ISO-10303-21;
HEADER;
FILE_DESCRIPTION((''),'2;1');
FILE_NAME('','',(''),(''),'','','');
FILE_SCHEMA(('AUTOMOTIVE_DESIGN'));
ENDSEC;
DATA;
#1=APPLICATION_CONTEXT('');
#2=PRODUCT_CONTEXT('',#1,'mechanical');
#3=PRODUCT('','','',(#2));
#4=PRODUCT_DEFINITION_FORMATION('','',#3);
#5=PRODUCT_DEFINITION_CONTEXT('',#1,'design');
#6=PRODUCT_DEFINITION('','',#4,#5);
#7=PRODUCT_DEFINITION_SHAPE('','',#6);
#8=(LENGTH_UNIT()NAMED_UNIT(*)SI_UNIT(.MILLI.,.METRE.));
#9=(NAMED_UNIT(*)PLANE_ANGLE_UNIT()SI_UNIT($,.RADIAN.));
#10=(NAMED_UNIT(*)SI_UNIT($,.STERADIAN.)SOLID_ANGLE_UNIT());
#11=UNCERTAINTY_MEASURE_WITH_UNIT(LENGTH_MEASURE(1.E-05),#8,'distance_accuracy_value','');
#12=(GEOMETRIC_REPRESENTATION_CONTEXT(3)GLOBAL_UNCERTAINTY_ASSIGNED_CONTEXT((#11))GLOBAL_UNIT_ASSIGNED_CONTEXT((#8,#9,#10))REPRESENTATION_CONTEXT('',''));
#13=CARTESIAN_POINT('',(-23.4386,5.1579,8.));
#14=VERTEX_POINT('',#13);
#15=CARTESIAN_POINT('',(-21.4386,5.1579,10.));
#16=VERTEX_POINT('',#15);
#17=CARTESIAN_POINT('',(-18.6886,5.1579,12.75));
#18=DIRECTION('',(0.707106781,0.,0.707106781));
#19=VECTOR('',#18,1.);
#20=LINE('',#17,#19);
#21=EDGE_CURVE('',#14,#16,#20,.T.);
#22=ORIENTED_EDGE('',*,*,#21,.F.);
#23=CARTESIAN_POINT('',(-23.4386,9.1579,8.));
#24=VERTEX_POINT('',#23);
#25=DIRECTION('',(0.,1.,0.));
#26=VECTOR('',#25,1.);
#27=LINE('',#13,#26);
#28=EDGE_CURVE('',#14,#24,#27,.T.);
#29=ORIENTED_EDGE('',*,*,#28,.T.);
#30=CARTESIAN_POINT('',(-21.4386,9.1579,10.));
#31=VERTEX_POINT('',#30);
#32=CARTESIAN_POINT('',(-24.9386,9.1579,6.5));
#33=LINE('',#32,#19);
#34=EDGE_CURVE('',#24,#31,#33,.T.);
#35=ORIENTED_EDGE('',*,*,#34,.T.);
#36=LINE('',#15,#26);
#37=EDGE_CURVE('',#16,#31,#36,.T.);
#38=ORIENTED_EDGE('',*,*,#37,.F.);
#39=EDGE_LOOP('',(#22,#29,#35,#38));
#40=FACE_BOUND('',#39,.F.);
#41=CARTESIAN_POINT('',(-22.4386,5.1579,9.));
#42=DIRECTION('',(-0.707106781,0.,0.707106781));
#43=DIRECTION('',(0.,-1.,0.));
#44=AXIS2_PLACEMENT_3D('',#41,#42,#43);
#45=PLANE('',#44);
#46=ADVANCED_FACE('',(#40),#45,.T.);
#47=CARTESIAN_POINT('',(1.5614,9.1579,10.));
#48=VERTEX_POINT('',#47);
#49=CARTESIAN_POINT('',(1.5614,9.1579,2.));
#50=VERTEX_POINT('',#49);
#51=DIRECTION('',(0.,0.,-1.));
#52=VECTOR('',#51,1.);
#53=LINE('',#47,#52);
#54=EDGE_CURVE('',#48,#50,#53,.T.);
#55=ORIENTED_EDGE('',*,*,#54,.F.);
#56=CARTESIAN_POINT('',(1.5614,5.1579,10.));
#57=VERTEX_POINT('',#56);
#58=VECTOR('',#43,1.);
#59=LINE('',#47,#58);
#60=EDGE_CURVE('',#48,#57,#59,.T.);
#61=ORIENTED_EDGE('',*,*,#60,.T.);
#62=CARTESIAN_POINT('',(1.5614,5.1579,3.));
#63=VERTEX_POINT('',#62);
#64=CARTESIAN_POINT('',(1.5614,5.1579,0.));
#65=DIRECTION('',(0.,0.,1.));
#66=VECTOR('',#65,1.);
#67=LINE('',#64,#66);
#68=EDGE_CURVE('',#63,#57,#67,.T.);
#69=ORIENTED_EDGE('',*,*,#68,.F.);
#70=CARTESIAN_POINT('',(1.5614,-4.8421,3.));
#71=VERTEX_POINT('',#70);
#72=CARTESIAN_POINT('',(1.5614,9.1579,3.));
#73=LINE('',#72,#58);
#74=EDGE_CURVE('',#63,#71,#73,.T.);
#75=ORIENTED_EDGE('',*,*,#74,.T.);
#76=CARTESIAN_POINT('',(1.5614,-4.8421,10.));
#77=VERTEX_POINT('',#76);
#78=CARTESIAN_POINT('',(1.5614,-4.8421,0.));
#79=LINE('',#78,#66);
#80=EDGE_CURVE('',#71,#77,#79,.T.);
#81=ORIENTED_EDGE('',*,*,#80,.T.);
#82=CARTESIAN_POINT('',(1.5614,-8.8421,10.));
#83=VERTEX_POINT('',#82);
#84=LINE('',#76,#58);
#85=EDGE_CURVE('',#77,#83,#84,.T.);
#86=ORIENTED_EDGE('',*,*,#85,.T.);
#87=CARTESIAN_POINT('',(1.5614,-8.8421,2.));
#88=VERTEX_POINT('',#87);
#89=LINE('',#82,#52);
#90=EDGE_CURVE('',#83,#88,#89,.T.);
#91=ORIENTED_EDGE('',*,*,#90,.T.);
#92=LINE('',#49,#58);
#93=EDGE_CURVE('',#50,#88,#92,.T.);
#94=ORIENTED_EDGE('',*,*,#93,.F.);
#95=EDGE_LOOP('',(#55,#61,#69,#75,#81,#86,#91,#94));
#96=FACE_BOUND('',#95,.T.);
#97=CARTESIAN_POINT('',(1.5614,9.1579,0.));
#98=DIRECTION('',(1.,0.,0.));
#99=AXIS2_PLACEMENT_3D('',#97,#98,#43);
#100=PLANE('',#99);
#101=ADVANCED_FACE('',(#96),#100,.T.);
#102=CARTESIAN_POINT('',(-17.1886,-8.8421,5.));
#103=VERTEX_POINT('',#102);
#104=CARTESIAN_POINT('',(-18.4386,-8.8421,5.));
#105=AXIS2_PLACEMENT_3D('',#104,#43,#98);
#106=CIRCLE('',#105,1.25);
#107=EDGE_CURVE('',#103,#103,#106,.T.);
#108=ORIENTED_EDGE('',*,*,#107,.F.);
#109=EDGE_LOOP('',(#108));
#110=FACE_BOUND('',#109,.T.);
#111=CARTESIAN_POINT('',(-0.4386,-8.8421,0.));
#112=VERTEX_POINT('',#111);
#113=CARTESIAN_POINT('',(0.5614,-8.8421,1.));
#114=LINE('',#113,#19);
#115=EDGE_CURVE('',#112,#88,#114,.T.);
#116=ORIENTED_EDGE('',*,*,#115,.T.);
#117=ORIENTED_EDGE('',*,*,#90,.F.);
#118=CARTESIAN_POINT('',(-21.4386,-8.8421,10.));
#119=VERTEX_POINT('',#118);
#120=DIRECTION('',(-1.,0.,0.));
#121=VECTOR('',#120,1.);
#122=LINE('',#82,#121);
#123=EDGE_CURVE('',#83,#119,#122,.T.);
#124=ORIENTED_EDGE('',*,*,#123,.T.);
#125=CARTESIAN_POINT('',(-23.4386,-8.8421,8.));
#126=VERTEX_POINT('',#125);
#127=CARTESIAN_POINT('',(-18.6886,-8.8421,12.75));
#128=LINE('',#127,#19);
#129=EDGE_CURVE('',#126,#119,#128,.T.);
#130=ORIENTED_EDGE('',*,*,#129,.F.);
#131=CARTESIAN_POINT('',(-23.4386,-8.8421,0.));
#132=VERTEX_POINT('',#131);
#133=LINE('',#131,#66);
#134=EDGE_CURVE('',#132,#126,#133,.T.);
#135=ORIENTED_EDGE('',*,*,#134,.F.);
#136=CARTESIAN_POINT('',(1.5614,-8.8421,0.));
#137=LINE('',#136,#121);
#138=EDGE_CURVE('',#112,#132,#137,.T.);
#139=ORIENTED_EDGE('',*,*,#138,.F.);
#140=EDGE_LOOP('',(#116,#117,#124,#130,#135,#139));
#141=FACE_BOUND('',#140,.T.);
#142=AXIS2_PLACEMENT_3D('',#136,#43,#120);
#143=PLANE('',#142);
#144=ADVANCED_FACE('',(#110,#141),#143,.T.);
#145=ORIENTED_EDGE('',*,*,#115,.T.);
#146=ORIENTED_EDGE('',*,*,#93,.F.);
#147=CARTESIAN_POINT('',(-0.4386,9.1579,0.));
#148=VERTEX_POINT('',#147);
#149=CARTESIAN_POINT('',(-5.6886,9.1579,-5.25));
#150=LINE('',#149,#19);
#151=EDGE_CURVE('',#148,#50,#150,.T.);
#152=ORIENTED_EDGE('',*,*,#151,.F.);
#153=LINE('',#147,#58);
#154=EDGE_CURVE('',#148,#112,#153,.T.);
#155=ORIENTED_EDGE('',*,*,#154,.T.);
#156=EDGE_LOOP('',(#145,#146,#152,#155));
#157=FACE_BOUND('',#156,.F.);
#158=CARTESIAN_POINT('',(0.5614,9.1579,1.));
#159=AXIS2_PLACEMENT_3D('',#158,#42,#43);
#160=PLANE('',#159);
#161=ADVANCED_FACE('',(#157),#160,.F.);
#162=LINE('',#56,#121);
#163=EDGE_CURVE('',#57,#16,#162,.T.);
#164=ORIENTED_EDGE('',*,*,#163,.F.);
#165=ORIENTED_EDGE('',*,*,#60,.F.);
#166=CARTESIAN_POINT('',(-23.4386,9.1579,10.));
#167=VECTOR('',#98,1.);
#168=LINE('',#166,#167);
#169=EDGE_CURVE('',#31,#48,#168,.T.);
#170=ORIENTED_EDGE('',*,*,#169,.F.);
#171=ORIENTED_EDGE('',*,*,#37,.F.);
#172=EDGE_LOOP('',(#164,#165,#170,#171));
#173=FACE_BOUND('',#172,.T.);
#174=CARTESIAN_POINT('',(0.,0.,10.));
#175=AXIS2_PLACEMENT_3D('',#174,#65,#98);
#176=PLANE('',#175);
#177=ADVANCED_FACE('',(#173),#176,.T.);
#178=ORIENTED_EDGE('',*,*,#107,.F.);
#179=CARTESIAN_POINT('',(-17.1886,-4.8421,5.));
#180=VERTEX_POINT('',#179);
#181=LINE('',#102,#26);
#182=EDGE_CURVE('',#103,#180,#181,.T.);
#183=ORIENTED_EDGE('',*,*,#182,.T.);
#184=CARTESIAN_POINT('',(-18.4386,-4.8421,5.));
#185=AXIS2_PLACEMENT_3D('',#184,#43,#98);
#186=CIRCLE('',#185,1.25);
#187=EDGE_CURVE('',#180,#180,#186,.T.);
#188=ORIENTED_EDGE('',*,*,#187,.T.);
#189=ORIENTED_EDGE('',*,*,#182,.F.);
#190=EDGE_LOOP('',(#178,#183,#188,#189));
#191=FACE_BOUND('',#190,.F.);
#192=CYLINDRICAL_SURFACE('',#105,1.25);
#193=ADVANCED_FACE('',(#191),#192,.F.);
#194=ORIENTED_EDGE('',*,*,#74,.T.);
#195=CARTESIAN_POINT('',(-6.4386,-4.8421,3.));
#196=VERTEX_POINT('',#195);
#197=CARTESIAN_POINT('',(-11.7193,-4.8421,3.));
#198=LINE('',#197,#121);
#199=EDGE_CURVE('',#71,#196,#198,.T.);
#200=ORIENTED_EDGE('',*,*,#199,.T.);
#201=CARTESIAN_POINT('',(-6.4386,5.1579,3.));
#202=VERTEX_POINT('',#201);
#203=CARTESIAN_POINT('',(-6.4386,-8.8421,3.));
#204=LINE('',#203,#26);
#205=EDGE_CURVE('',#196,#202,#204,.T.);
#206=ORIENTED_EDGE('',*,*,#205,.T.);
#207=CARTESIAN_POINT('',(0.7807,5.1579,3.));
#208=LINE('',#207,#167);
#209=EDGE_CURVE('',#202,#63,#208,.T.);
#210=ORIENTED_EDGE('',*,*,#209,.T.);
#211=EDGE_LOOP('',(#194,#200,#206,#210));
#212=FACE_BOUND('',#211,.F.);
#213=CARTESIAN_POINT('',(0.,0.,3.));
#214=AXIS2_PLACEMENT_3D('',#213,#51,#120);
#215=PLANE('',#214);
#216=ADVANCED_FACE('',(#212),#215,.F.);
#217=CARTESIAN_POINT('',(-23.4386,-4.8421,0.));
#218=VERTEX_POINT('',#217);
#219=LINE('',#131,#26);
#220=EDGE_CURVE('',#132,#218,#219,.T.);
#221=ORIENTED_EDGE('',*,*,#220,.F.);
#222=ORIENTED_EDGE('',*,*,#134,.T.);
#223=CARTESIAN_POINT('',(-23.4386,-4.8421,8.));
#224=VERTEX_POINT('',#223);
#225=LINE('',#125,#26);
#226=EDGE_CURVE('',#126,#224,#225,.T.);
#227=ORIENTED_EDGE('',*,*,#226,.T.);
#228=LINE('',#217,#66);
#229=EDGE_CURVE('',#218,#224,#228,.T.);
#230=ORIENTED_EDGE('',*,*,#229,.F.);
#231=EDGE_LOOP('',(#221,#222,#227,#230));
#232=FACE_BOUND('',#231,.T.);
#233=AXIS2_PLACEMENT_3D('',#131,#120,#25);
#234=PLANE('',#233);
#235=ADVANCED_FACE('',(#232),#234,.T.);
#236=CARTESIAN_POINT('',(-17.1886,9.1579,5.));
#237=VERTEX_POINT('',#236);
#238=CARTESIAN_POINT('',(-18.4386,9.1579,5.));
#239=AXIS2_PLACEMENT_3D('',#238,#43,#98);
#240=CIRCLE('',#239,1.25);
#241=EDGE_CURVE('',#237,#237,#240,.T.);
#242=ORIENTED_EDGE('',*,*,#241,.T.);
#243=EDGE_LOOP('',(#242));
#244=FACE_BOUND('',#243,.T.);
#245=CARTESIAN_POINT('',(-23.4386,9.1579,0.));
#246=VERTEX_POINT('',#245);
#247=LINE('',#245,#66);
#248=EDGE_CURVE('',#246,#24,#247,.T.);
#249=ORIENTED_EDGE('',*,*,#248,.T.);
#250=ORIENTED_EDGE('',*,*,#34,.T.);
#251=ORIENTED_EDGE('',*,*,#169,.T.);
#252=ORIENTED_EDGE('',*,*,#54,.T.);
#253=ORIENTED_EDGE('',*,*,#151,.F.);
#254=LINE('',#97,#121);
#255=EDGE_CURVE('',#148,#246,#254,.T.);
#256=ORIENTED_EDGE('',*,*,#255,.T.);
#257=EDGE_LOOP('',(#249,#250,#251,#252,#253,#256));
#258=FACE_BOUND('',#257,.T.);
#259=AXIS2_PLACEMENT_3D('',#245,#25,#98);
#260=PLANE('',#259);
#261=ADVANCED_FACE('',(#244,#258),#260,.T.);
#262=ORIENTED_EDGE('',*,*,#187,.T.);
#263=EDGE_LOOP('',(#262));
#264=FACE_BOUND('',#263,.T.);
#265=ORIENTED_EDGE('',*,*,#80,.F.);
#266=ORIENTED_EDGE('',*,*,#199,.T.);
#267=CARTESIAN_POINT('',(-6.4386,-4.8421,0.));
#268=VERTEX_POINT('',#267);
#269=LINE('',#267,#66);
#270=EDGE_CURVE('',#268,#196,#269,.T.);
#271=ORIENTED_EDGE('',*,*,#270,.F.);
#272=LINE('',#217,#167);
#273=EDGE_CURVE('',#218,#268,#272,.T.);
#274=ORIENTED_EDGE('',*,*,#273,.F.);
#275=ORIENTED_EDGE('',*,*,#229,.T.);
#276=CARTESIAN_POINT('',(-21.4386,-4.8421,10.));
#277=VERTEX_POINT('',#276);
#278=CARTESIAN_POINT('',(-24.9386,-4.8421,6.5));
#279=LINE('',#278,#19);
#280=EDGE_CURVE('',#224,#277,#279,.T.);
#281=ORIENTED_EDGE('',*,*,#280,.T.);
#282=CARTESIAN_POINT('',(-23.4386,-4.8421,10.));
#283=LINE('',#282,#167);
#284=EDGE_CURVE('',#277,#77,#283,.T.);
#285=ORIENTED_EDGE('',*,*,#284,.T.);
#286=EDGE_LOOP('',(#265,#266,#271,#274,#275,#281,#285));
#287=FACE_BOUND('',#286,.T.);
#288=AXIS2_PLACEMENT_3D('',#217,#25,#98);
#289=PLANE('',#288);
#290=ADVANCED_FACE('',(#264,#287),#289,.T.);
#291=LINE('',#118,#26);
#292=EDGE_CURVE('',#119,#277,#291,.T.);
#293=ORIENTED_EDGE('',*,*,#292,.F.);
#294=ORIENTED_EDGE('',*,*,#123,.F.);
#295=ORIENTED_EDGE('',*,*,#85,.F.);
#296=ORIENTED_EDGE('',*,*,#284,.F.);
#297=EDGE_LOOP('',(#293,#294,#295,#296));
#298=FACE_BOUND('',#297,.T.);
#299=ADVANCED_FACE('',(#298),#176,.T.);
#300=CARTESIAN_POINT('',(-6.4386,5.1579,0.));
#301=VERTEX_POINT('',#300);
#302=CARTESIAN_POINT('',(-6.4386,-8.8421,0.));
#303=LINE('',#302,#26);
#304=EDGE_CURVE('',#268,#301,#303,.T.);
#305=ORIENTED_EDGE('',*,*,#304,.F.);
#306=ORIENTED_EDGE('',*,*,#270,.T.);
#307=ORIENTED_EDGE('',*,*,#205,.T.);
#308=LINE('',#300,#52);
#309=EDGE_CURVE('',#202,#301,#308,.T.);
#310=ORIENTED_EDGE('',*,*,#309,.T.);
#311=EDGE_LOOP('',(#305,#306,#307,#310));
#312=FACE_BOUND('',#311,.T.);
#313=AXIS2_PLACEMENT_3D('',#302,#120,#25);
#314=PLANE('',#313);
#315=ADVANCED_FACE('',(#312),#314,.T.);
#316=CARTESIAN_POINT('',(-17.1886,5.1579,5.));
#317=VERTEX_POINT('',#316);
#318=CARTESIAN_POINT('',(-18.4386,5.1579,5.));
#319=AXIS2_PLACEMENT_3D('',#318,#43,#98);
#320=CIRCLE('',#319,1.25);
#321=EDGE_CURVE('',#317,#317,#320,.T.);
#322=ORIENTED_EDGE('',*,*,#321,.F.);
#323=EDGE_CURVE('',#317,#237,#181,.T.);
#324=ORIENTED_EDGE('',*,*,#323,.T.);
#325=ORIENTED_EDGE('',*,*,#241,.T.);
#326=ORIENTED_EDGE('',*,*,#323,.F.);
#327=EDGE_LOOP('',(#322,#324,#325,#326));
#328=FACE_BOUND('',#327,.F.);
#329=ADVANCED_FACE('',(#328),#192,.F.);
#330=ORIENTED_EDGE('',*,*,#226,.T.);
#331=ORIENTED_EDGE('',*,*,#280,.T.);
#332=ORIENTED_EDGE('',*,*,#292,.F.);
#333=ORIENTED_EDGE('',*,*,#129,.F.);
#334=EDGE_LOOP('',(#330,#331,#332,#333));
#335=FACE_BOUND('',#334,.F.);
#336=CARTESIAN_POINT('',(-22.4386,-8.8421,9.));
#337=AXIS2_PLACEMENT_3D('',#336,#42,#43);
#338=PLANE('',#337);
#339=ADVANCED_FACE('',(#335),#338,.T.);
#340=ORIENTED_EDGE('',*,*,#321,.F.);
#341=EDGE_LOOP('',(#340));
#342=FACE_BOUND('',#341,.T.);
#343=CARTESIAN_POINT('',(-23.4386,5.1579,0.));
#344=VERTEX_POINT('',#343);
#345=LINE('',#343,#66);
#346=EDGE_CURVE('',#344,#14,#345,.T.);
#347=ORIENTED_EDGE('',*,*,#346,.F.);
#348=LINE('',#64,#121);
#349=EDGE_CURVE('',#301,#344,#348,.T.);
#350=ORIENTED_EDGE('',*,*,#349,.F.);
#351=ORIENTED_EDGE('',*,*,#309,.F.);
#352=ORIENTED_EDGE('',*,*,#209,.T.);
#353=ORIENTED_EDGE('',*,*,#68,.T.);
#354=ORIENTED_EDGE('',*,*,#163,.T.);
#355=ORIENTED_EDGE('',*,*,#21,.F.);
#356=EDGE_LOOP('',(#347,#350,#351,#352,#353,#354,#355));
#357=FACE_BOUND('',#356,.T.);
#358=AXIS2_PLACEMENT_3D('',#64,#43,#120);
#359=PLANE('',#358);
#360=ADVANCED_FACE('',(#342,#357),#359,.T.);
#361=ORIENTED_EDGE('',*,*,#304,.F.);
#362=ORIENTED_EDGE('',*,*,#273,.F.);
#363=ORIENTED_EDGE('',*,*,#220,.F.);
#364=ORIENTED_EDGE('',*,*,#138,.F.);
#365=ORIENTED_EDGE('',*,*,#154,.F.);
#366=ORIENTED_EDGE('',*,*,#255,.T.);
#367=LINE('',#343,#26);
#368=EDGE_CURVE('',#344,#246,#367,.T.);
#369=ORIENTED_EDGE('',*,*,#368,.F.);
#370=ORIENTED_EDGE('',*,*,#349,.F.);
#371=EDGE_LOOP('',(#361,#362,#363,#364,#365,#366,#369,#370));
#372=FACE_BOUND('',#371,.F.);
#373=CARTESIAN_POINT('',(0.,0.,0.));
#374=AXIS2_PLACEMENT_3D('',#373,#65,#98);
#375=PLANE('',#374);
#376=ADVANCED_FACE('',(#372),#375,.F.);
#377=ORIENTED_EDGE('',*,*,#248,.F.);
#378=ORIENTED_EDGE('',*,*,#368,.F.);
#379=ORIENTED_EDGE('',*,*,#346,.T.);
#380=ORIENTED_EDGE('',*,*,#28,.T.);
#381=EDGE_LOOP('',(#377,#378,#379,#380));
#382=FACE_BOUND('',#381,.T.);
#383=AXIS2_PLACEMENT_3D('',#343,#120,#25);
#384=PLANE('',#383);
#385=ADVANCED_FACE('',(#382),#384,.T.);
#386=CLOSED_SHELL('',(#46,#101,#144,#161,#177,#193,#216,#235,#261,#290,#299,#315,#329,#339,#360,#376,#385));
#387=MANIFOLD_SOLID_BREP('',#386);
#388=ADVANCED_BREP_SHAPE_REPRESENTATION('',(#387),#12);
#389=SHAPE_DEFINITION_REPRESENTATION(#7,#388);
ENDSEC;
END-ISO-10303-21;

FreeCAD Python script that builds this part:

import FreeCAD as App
import Part
import Sketcher
from FreeCAD import Vector


def edges_at(feature, points):
    """Names of the edges that pass closest to the given points."""
    edges = feature.Shape.Edges
    near = lambda p: min(range(len(edges)), key=lambda i: edges[i].distToShape(Part.Vertex(*p))[0])
    return sorted({f"Edge{near(p) + 1}" for p in points})

doc = App.newDocument("Part")
body = doc.addObject("PartDesign::Body", "Body")
body.AllowCompound = True

sketch1 = doc.addObject("Sketcher::SketchObject", "Sketch")
body.addObject(sketch1)
sketch1.AttachmentSupport = (doc.XY_Plane, [""])
sketch1.MapMode = "FlatFace"
sketch1.addGeometry(Part.LineSegment(Vector(1.6, 9.2, 0), Vector(-23.4, 9.2, 0)), False)
sketch1.addGeometry(Part.LineSegment(Vector(-23.4, 9.2, 0), Vector(-23.4, 5.2, 0)), False)
sketch1.addGeometry(Part.LineSegment(Vector(-23.4, 5.2, 0), Vector(1.6, 5.2, 0)), False)
sketch1.addGeometry(Part.LineSegment(Vector(1.6, 5.2, 0), Vector(1.6, 9.2, 0)), False)
sketch1.addGeometry(Part.LineSegment(Vector(1.6, -4.8, 0), Vector(-23.4, -4.8, 0)), False)
sketch1.addGeometry(Part.LineSegment(Vector(-23.4, -4.8, 0), Vector(-23.4, -8.8, 0)), False)
sketch1.addGeometry(Part.LineSegment(Vector(-23.4, -8.8, 0), Vector(1.6, -8.8, 0)), False)
sketch1.addGeometry(Part.LineSegment(Vector(1.6, -8.8, 0), Vector(1.6, -4.8, 0)), False)
sketch1.addConstraint(Sketcher.Constraint("Coincident", 0, 2, 1, 1))
sketch1.addConstraint(Sketcher.Constraint("Coincident", 1, 2, 2, 1))
sketch1.addConstraint(Sketcher.Constraint("Coincident", 2, 2, 3, 1))
sketch1.addConstraint(Sketcher.Constraint("Coincident", 3, 2, 0, 1))
sketch1.addConstraint(Sketcher.Constraint("Coincident", 4, 2, 5, 1))
sketch1.addConstraint(Sketcher.Constraint("Coincident", 5, 2, 6, 1))
sketch1.addConstraint(Sketcher.Constraint("Coincident", 6, 2, 7, 1))
sketch1.addConstraint(Sketcher.Constraint("Coincident", 7, 2, 4, 1))
sketch1.addConstraint(Sketcher.Constraint("Horizontal", 0))
sketch1.addConstraint(Sketcher.Constraint("Vertical", 1))
sketch1.addConstraint(Sketcher.Constraint("Horizontal", 2))
sketch1.addConstraint(Sketcher.Constraint("Vertical", 3))
sketch1.addConstraint(Sketcher.Constraint("Horizontal", 4))
sketch1.addConstraint(Sketcher.Constraint("Vertical", 5))
sketch1.addConstraint(Sketcher.Constraint("Horizontal", 6))
sketch1.addConstraint(Sketcher.Constraint("Vertical", 7))
sketch1.addConstraint(Sketcher.Constraint("Vertical", 1, 2, 4, 2))
sketch1.addConstraint(Sketcher.Constraint("Vertical", 3, 2, 6, 2))
sketch1.addConstraint(Sketcher.Constraint("Equal", 3, 5))
sketch1.addConstraint(Sketcher.Constraint("DistanceX", 0, 2, 0, 1, 25.0))
sketch1.addConstraint(Sketcher.Constraint("DistanceY", 1, 2, 1, 1, 4.0))
sketch1.addConstraint(Sketcher.Constraint("DistanceY", 4, 2, 1, 2, 10.0))
sketch1.addConstraint(Sketcher.Constraint("DistanceY", -1, 1, 0, 2, 9.158))
sketch1.addConstraint(Sketcher.Constraint("DistanceX", 0, 2, -1, 1, 23.4386))
pad1 = doc.addObject("PartDesign::Pad", "Pad")
body.addObject(pad1)
pad1.Profile = sketch1
pad1.Length = 10

sketch2 = doc.addObject("Sketcher::SketchObject", "Sketch001")
body.addObject(sketch2)
sketch2.AttachmentSupport = (doc.XY_Plane, [""])
sketch2.MapMode = "FlatFace"
sketch2.addGeometry(Part.LineSegment(Vector(2, 9, 0), Vector(2, -9, 0)), False)
sketch2.addGeometry(Part.LineSegment(Vector(2, -9, 0), Vector(-6, -9, 0)), False)
sketch2.addGeometry(Part.LineSegment(Vector(-6, -9, 0), Vector(-6, 9, 0)), False)
sketch2.addGeometry(Part.LineSegment(Vector(-6, 9, 0), Vector(2, 9, 0)), False)
sketch2.addConstraint(Sketcher.Constraint("Coincident", 0, 2, 1, 1))
sketch2.addConstraint(Sketcher.Constraint("Coincident", 1, 2, 2, 1))
sketch2.addConstraint(Sketcher.Constraint("Coincident", 2, 2, 3, 1))
sketch2.addConstraint(Sketcher.Constraint("Coincident", 3, 2, 0, 1))
sketch2.addConstraint(Sketcher.Constraint("Vertical", 0))
sketch2.addConstraint(Sketcher.Constraint("Horizontal", 1))
sketch2.addConstraint(Sketcher.Constraint("Vertical", 2))
sketch2.addConstraint(Sketcher.Constraint("Horizontal", 3))
sketch2.addConstraint(Sketcher.Constraint("DistanceX", 1, 2, 1, 1, 8.0))
sketch2.addConstraint(Sketcher.Constraint("DistanceY", 0, 2, 0, 1, 18.0))
sketch2.addConstraint(Sketcher.Constraint("DistanceY", 0, 2, -1, 1, 8.842))
sketch2.addConstraint(Sketcher.Constraint("DistanceX", -1, 1, 0, 2, 1.5614))
pad2 = doc.addObject("PartDesign::Pad", "Pad001")
body.addObject(pad2)
pad2.Profile = sketch2
pad2.Length = 3

sketch3 = doc.addObject("Sketcher::SketchObject", "Sketch002")
body.addObject(sketch3)
sketch3.AttachmentSupport = (doc.XZ_Plane, [""])
sketch3.MapMode = "FlatFace"
sketch3.AttachmentOffset = App.Placement(Vector(0, 0, 8.8421), App.Rotation())
sketch3.addGeometry(Part.Circle(Vector(-18.4, 5, 0), Vector(0, 0, 1), 1.2), False)
sketch3.addConstraint(Sketcher.Constraint("Diameter", 0, 2.5))
sketch3.addConstraint(Sketcher.Constraint("DistanceY", -1, 1, 0, 3, 5.0))
sketch3.addConstraint(Sketcher.Constraint("DistanceX", 0, 3, -1, 1, 18.4386))
pocket1 = doc.addObject("PartDesign::Pocket", "Pocket")
body.addObject(pocket1)
pocket1.Profile = sketch3
pocket1.Length = 30
doc.recompute()

chamfer = doc.addObject("PartDesign::Chamfer", "Chamfer")
body.addObject(chamfer)
chamfer.Base = (pocket1, edges_at(pocket1, [(1.561, 0.158, 0)]))
chamfer.Size = 2
doc.recompute()

chamfer2 = doc.addObject("PartDesign::Chamfer", "Chamfer001")
body.addObject(chamfer2)
chamfer2.Base = (chamfer, edges_at(chamfer, [(-23.439, 7.158, 10), (-23.439, -6.842, 10)]))
chamfer2.Size = 2

doc.recompute()
